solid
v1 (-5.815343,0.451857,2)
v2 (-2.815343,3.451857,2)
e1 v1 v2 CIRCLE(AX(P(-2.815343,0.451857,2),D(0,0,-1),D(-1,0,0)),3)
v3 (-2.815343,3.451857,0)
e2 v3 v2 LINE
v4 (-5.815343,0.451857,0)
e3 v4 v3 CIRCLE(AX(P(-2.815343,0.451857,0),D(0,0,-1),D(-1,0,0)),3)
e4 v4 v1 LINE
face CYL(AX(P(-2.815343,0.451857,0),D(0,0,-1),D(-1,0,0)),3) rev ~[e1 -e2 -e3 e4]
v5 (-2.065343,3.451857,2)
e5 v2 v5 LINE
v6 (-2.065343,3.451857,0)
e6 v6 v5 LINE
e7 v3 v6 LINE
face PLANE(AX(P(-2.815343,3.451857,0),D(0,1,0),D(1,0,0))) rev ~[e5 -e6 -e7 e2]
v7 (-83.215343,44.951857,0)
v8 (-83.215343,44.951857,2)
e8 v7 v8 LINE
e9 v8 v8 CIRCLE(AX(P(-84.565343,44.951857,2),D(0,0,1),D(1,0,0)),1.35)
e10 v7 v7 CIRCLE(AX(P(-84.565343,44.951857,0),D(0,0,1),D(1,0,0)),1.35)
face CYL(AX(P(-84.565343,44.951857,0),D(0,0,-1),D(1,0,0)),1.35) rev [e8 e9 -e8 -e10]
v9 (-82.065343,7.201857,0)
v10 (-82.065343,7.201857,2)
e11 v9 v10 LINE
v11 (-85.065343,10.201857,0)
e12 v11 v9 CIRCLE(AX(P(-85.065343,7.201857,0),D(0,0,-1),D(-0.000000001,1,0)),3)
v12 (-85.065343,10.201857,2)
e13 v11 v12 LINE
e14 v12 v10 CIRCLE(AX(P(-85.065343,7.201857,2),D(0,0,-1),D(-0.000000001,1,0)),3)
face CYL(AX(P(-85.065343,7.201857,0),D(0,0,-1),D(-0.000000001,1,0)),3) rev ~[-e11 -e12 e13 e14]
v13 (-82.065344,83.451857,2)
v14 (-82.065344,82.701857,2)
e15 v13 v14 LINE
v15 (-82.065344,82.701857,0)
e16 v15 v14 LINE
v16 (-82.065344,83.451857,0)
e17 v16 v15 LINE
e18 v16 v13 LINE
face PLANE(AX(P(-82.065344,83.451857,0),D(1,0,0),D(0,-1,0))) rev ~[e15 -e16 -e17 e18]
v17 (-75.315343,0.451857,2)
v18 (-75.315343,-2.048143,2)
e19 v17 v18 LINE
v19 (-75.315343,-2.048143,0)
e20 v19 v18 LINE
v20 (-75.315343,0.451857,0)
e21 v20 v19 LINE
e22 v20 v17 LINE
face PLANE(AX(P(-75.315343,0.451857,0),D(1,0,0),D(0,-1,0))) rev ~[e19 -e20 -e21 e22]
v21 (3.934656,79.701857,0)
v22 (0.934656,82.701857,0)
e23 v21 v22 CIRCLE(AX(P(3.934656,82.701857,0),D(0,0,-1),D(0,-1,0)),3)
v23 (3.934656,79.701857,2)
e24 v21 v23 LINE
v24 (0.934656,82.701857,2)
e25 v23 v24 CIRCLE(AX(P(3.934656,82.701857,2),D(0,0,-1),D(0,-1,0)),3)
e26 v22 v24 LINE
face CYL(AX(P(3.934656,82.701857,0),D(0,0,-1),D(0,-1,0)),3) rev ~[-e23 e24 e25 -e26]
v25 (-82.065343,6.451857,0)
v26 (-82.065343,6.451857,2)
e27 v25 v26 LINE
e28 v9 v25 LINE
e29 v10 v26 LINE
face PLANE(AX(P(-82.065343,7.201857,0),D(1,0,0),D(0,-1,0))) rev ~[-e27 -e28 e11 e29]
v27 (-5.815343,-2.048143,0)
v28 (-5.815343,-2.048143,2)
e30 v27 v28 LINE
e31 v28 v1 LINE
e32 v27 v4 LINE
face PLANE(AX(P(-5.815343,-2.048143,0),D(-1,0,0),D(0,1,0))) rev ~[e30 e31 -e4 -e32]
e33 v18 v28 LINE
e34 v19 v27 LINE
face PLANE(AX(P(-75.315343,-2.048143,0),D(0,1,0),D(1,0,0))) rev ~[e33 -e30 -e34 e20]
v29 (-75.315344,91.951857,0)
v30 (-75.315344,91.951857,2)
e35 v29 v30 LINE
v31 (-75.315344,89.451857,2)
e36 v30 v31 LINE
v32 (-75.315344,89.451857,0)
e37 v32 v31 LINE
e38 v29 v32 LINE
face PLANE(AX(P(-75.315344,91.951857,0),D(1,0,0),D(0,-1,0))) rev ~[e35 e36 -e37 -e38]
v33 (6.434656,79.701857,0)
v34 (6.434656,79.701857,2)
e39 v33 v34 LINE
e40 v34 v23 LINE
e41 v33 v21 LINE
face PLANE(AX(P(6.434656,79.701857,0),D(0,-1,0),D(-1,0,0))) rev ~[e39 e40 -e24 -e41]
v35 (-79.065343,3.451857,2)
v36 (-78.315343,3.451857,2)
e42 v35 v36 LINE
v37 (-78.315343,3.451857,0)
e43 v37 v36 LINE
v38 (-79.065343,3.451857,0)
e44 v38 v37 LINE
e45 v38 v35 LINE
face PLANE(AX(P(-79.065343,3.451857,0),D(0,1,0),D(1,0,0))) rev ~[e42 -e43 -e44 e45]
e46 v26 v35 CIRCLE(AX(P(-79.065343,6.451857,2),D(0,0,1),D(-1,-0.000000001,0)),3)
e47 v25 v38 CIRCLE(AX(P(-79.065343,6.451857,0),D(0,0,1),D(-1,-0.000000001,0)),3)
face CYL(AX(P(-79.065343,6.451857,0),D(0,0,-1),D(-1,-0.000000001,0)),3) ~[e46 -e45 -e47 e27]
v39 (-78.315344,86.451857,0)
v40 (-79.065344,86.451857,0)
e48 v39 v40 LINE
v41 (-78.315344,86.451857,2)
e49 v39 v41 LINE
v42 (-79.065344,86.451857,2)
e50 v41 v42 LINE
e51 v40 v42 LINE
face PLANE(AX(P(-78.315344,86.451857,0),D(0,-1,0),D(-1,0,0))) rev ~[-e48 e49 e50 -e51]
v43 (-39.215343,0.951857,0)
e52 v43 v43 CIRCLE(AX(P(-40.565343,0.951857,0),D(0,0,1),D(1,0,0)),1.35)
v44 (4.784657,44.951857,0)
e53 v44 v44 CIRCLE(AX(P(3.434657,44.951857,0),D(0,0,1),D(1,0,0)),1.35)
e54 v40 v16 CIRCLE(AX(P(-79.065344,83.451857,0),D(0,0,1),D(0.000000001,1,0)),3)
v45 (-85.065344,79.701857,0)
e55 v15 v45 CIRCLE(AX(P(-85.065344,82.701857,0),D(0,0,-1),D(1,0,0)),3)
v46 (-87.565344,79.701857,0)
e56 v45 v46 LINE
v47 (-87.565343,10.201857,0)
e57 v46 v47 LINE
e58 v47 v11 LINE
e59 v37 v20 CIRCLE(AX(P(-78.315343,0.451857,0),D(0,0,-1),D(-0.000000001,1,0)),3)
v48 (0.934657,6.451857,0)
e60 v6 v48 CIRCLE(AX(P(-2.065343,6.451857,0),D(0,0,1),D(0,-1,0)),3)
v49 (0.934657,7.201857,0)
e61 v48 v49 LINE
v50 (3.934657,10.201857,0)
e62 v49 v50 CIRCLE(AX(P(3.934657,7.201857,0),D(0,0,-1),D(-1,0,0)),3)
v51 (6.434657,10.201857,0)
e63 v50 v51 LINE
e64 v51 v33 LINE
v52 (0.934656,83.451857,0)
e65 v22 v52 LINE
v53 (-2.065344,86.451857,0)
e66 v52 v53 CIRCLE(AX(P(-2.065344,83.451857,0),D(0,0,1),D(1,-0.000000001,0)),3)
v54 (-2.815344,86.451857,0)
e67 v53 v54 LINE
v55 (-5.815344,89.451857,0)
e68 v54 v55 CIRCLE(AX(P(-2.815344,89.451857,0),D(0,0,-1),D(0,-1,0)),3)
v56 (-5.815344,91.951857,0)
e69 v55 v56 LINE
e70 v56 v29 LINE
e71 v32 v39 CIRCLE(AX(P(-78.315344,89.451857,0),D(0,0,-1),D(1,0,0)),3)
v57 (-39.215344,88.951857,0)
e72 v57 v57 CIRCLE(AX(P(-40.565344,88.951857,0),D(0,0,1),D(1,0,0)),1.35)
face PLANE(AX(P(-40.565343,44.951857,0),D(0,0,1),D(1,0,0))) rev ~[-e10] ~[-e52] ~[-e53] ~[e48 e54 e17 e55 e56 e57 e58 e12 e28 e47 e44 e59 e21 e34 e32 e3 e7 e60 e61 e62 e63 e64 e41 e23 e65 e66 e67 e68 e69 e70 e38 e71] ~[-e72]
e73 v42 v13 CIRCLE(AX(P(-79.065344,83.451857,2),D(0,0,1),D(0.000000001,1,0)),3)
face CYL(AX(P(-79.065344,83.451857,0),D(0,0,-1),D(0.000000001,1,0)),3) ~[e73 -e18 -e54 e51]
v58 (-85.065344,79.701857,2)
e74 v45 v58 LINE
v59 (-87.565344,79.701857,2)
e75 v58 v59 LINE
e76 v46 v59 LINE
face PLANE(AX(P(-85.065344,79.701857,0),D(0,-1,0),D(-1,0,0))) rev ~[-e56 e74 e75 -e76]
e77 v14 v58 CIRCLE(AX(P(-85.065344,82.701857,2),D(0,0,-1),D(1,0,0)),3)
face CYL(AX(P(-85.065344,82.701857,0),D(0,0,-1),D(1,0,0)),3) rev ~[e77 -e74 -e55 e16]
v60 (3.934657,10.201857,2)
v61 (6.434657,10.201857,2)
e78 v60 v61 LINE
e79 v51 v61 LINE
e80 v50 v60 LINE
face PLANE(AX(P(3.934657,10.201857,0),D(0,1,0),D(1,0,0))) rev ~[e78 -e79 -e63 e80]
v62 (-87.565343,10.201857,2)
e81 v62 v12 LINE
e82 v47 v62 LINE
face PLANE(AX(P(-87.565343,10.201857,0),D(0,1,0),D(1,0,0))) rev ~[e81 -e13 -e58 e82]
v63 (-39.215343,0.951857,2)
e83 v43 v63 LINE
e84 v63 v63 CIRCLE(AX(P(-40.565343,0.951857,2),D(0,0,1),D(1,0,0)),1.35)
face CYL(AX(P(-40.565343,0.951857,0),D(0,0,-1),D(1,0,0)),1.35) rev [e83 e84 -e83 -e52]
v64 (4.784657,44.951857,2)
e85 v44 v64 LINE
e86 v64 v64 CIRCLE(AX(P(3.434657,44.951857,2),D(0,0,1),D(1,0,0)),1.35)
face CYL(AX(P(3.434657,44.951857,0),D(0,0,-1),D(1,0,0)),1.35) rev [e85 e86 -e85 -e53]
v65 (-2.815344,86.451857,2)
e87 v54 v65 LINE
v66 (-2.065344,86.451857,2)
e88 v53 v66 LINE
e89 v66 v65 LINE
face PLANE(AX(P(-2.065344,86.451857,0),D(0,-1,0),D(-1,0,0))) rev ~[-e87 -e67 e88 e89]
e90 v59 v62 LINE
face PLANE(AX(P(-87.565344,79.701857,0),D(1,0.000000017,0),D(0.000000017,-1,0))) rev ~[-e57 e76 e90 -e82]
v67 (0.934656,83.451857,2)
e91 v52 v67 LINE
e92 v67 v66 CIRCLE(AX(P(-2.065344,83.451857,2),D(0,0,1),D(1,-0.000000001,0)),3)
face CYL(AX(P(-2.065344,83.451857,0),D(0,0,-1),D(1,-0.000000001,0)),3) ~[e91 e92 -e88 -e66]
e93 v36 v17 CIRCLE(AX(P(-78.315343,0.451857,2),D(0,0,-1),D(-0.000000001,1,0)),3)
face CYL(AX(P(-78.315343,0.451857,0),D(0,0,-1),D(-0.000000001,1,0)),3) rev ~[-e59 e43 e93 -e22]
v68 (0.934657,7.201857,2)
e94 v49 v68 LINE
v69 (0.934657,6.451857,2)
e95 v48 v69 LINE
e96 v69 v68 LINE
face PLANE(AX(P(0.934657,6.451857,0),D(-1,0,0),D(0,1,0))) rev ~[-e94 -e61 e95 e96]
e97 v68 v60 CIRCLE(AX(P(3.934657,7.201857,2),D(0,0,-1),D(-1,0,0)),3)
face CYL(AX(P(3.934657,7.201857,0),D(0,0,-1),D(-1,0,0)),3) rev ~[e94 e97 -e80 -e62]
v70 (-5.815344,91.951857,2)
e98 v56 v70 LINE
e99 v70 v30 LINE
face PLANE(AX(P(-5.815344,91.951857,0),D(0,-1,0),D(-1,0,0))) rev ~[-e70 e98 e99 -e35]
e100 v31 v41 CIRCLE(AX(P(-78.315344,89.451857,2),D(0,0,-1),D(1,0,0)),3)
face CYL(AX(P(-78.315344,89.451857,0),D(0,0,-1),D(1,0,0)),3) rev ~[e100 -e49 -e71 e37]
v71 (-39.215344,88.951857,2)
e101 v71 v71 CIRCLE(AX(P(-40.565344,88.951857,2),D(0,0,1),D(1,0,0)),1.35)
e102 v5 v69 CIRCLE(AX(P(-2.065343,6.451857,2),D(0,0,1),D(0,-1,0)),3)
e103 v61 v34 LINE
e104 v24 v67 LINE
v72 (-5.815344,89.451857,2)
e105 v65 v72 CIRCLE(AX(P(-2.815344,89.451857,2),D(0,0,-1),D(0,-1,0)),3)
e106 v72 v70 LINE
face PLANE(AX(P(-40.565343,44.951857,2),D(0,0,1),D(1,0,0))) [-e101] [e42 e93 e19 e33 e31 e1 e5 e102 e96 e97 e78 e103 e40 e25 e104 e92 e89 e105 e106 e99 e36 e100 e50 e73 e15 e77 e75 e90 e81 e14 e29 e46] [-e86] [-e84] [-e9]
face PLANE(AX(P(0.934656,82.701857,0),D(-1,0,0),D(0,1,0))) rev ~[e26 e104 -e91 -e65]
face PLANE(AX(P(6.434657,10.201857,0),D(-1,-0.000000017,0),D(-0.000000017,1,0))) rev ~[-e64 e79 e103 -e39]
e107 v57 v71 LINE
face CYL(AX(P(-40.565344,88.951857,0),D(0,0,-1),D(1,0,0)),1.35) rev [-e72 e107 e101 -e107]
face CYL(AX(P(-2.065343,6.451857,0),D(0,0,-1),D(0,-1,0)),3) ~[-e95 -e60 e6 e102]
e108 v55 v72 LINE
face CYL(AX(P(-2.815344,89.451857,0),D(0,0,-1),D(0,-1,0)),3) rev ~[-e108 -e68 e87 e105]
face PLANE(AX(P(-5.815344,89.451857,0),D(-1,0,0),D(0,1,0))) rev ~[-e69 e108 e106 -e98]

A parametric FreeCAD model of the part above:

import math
import FreeCAD as App
import Part
import Sketcher

V = App.Vector

doc = App.newDocument("Part")
body = doc.addObject("PartDesign::Body", "Body")

# Sketch on XY plane
sketch1 = body.newObject("Sketcher::SketchObject", "Sketch")
sketch1.AttachmentSupport = (doc.getObject("XY_Plane"), [""])
sketch1.MapMode = "FlatFace"
sketch1.addGeometry(Part.LineSegment(V(-5.8, -2, 0), V(-5.8, 0.5, 0)), False)
sketch1.addGeometry(Part.ArcOfCircle(Part.Circle(V(-2.8, 0.5, 0), V(0, 0, 1), 3), math.radians(90), math.radians(180)), False)
sketch1.addGeometry(Part.LineSegment(V(-2.8, 3.5, 0), V(-2.1, 3.5, 0)), False)
sketch1.addGeometry(Part.ArcOfCircle(Part.Circle(V(-2.1, 6.5, 0), V(0, 0, 1), 3), math.radians(-90), math.radians(0)), False)
sketch1.addGeometry(Part.LineSegment(V(0.9, 6.5, 0), V(0.9, 7.2, 0)), False)
sketch1.addGeometry(Part.ArcOfCircle(Part.Circle(V(3.9, 7.2, 0), V(0, 0, 1), 3), math.radians(90), math.radians(180)), False)
sketch1.addGeometry(Part.LineSegment(V(3.9, 10.2, 0), V(6.4, 10.2, 0)), False)
sketch1.addGeometry(Part.LineSegment(V(6.4, 10.2, 0), V(6.4, 79.7, 0)), False)
sketch1.addGeometry(Part.LineSegment(V(6.4, 79.7, 0), V(3.9, 79.7, 0)), False)
sketch1.addGeometry(Part.ArcOfCircle(Part.Circle(V(3.9, 82.7, 0), V(0, 0, 1), 3), math.radians(180), math.radians(270)), False)
sketch1.addGeometry(Part.LineSegment(V(0.9, 82.7, 0), V(0.9, 83.5, 0)), False)
sketch1.addGeometry(Part.ArcOfCircle(Part.Circle(V(-2.1, 83.5, 0), V(0, 0, 1), 3), math.radians(0), math.radians(90)), False)
sketch1.addGeometry(Part.LineSegment(V(-2.1, 86.5, 0), V(-2.8, 86.5, 0)), False)
sketch1.addGeometry(Part.ArcOfCircle(Part.Circle(V(-2.8, 89.5, 0), V(0, 0, 1), 3), math.radians(180), math.radians(270)), False)
sketch1.addGeometry(Part.LineSegment(V(-5.8, 89.5, 0), V(-5.8, 92, 0)), False)
sketch1.addGeometry(Part.LineSegment(V(-5.8, 92, 0), V(-75.3, 92, 0)), False)
sketch1.addGeometry(Part.LineSegment(V(-75.3, 92, 0), V(-75.3, 89.5, 0)), False)
sketch1.addGeometry(Part.ArcOfCircle(Part.Circle(V(-78.3, 89.5, 0), V(0, 0, 1), 3), math.radians(-90), math.radians(0)), False)
sketch1.addGeometry(Part.LineSegment(V(-78.3, 86.5, 0), V(-79.1, 86.5, 0)), False)
sketch1.addGeometry(Part.ArcOfCircle(Part.Circle(V(-79.1, 83.5, 0), V(0, 0, 1), 3), math.radians(90), math.radians(180)), False)
sketch1.addGeometry(Part.LineSegment(V(-82.1, 83.5, 0), V(-82.1, 82.7, 0)), False)
sketch1.addGeometry(Part.ArcOfCircle(Part.Circle(V(-85.1, 82.7, 0), V(0, 0, 1), 3), math.radians(-90), math.radians(0)), False)
sketch1.addGeometry(Part.LineSegment(V(-85.1, 79.7, 0), V(-87.6, 79.7, 0)), False)
sketch1.addGeometry(Part.LineSegment(V(-87.6, 79.7, 0), V(-87.6, 10.2, 0)), False)
sketch1.addGeometry(Part.LineSegment(V(-87.6, 10.2, 0), V(-85.1, 10.2, 0)), False)
sketch1.addGeometry(Part.ArcOfCircle(Part.Circle(V(-85.1, 7.2, 0), V(0, 0, 1), 3), math.radians(0), math.radians(90)), False)
sketch1.addGeometry(Part.LineSegment(V(-82.1, 7.2, 0), V(-82.1, 6.5, 0)), False)
sketch1.addGeometry(Part.ArcOfCircle(Part.Circle(V(-79.1, 6.5, 0), V(0, 0, 1), 3), math.radians(-180), math.radians(-90)), False)
sketch1.addGeometry(Part.LineSegment(V(-79.1, 3.5, 0), V(-78.3, 3.5, 0)), False)
sketch1.addGeometry(Part.ArcOfCircle(Part.Circle(V(-78.3, 0.5, 0), V(0, 0, 1), 3), math.radians(0), math.radians(90)), False)
sketch1.addGeometry(Part.LineSegment(V(-75.3, 0.5, 0), V(-75.3, -2, 0)), False)
sketch1.addGeometry(Part.LineSegment(V(-75.3, -2, 0), V(-5.8, -2, 0)), False)
sketch1.addGeometry(Part.Circle(V(-84.6, 45, 0), V(0, 0, 1), 1.4), False)
sketch1.addGeometry(Part.Circle(V(-40.6, 1, 0), V(0, 0, 1), 1.4), False)
sketch1.addGeometry(Part.Circle(V(3.4, 45, 0), V(0, 0, 1), 1.4), False)
sketch1.addGeometry(Part.Circle(V(-40.6, 89, 0), V(0, 0, 1), 1.4), False)
sketch1.addConstraint(Sketcher.Constraint("Tangent", 0, 2, 1, 2))
sketch1.addConstraint(Sketcher.Constraint("Tangent", 1, 1, 2, 1))
sketch1.addConstraint(Sketcher.Constraint("Tangent", 2, 2, 3, 1))
sketch1.addConstraint(Sketcher.Constraint("Tangent", 3, 2, 4, 1))
sketch1.addConstraint(Sketcher.Constraint("Tangent", 4, 2, 5, 2))
sketch1.addConstraint(Sketcher.Constraint("Tangent", 5, 1, 6, 1))
sketch1.addConstraint(Sketcher.Constraint("Coincident", 6, 2, 7, 1))
sketch1.addConstraint(Sketcher.Constraint("Coincident", 7, 2, 8, 1))
sketch1.addConstraint(Sketcher.Constraint("Tangent", 8, 2, 9, 2))
sketch1.addConstraint(Sketcher.Constraint("Tangent", 9, 1, 10, 1))
sketch1.addConstraint(Sketcher.Constraint("Tangent", 10, 2, 11, 1))
sketch1.addConstraint(Sketcher.Constraint("Tangent", 11, 2, 12, 1))
sketch1.addConstraint(Sketcher.Constraint("Tangent", 12, 2, 13, 2))
sketch1.addConstraint(Sketcher.Constraint("Tangent", 13, 1, 14, 1))
sketch1.addConstraint(Sketcher.Constraint("Coincident", 14, 2, 15, 1))
sketch1.addConstraint(Sketcher.Constraint("Coincident", 15, 2, 16, 1))
sketch1.addConstraint(Sketcher.Constraint("Tangent", 16, 2, 17, 2))
sketch1.addConstraint(Sketcher.Constraint("Tangent", 17, 1, 18, 1))
sketch1.addConstraint(Sketcher.Constraint("Tangent", 18, 2, 19, 1))
sketch1.addConstraint(Sketcher.Constraint("Tangent", 19, 2, 20, 1))
sketch1.addConstraint(Sketcher.Constraint("Tangent", 20, 2, 21, 2))
sketch1.addConstraint(Sketcher.Constraint("Tangent", 21, 1, 22, 1))
sketch1.addConstraint(Sketcher.Constraint("Coincident", 22, 2, 23, 1))
sketch1.addConstraint(Sketcher.Constraint("Coincident", 23, 2, 24, 1))
sketch1.addConstraint(Sketcher.Constraint("Tangent", 24, 2, 25, 2))
sketch1.addConstraint(Sketcher.Constraint("Tangent", 25, 1, 26, 1))
sketch1.addConstraint(Sketcher.Constraint("Tangent", 26, 2, 27, 1))
sketch1.addConstraint(Sketcher.Constraint("Tangent", 27, 2, 28, 1))
sketch1.addConstraint(Sketcher.Constraint("Tangent", 28, 2, 29, 2))
sketch1.addConstraint(Sketcher.Constraint("Tangent", 29, 1, 30, 1))
sketch1.addConstraint(Sketcher.Constraint("Coincident", 30, 2, 31, 1))
sketch1.addConstraint(Sketcher.Constraint("Coincident", 31, 2, 0, 1))
sketch1.addConstraint(Sketcher.Constraint("Vertical", 0))
sketch1.addConstraint(Sketcher.Constraint("Horizontal", 2))
sketch1.addConstraint(Sketcher.Constraint("Vertical", 4))
sketch1.addConstraint(Sketcher.Constraint("Horizontal", 6))
sketch1.addConstraint(Sketcher.Constraint("Vertical", 7))
sketch1.addConstraint(Sketcher.Constraint("Horizontal", 8))
sketch1.addConstraint(Sketcher.Constraint("Vertical", 10))
sketch1.addConstraint(Sketcher.Constraint("Horizontal", 12))
sketch1.addConstraint(Sketcher.Constraint("Vertical", 14))
sketch1.addConstraint(Sketcher.Constraint("Horizontal", 15))
sketch1.addConstraint(Sketcher.Constraint("Vertical", 16))
sketch1.addConstraint(Sketcher.Constraint("Horizontal", 18))
sketch1.addConstraint(Sketcher.Constraint("Vertical", 20))
sketch1.addConstraint(Sketcher.Constraint("Horizontal", 22))
sketch1.addConstraint(Sketcher.Constraint("Vertical", 23))
sketch1.addConstraint(Sketcher.Constraint("Horizontal", 24))
sketch1.addConstraint(Sketcher.Constraint("Vertical", 26))
sketch1.addConstraint(Sketcher.Constraint("Horizontal", 28))
sketch1.addConstraint(Sketcher.Constraint("Vertical", 30))
sketch1.addConstraint(Sketcher.Constraint("Horizontal", 31))
sketch1.addConstraint(Sketcher.Constraint("Equal", 1, 3))
sketch1.addConstraint(Sketcher.Constraint("Equal", 3, 5))
sketch1.addConstraint(Sketcher.Constraint("Equal", 5, 9))
sketch1.addConstraint(Sketcher.Constraint("Equal", 9, 11))
sketch1.addConstraint(Sketcher.Constraint("Equal", 11, 13))
sketch1.addConstraint(Sketcher.Constraint("Equal", 13, 17))
sketch1.addConstraint(Sketcher.Constraint("Equal", 17, 19))
sketch1.addConstraint(Sketcher.Constraint("Equal", 19, 21))
sketch1.addConstraint(Sketcher.Constraint("Equal", 21, 25))
sketch1.addConstraint(Sketcher.Constraint("Equal", 25, 27))
sketch1.addConstraint(Sketcher.Constraint("Equal", 27, 29))
sketch1.addConstraint(Sketcher.Constraint("Equal", 32, 33))
sketch1.addConstraint(Sketcher.Constraint("Equal", 33, 34))
sketch1.addConstraint(Sketcher.Constraint("Equal", 34, 35))
sketch1.addConstraint(Sketcher.Constraint("Horizontal", 13, 3, 17, 3))
sketch1.addConstraint(Sketcher.Constraint("Horizontal", 9, 3, 21, 3))
sketch1.addConstraint(Sketcher.Constraint("Horizontal", 5, 3, 25, 3))
sketch1.addConstraint(Sketcher.Constraint("Horizontal", 3, 3, 27, 3))
sketch1.addConstraint(Sketcher.Constraint("Horizontal", 32, 3, 34, 3))
sketch1.addConstraint(Sketcher.Constraint("Vertical", 5, 3, 9, 3))
sketch1.addConstraint(Sketcher.Constraint("Vertical", 1, 3, 13, 3))
sketch1.addConstraint(Sketcher.Constraint("Vertical", 21, 3, 25, 3))
sketch1.addConstraint(Sketcher.Constraint("Vertical", 17, 3, 29, 3))
sketch1.addConstraint(Sketcher.Constraint("Vertical", 33, 3, 35, 3))
sketch1.addConstraint(Sketcher.Constraint("Equal", 12, 18))
sketch1.addConstraint(Sketcher.Constraint("Equal", 8, 22))
sketch1.addConstraint(Sketcher.Constraint("Equal", 24, 0))
sketch1.addConstraint(Sketcher.Constraint("Equal", 28, 4))
sketch1.addConstraint(Sketcher.Constraint("Equal", 31, 7))
sketch1.addConstraint(Sketcher.Constraint("Equal", 4, 10))
sketch1.addConstraint(Sketcher.Constraint("Equal", 0, 14))
sketch1.addConstraint(Sketcher.Constraint("Radius", 1, 3.0))
sketch1.addConstraint(Sketcher.Constraint("Diameter", 32, 2.7))
sketch1.addConstraint(Sketcher.Constraint("DistanceX", 6, 1, 6, 2, 2.5))
sketch1.addConstraint(Sketcher.Constraint("DistanceX", 15, 2, 15, 1, 69.5))
sketch1.addConstraint(Sketcher.Constraint("DistanceY", 3, 3, 11, 3, 77.0))
sketch1.addConstraint(Sketcher.Constraint("DistanceX", 34, 3, 7, 2, 2.999999))
sketch1.addConstraint(Sketcher.Constraint("DistanceX", 35, 3, 7, 2, 47.0))
sketch1.addConstraint(Sketcher.Constraint("DistanceY", 35, 3, 15, 2, 3.0))
sketch1.addConstraint(Sketcher.Constraint("DistanceY", 32, 3, 15, 2, 47.0))
sketch1.addConstraint(Sketcher.Constraint("DistanceX", 23, 2, 32, 3, 2.999999))
sketch1.addConstraint(Sketcher.Constraint("DistanceY", 1, 3, 33, 3, 0.5))
sketch1.addConstraint(Sketcher.Constraint("DistanceX", 1, 3, -1, 1, 2.815343))
sketch1.addConstraint(Sketcher.Constraint("DistanceY", -1, 1, 1, 3, 0.451857))
pad1 = body.newObject("PartDesign::Pad", "Pad")
pad1.Profile = sketch1
pad1.Length = 2

doc.recompute()
